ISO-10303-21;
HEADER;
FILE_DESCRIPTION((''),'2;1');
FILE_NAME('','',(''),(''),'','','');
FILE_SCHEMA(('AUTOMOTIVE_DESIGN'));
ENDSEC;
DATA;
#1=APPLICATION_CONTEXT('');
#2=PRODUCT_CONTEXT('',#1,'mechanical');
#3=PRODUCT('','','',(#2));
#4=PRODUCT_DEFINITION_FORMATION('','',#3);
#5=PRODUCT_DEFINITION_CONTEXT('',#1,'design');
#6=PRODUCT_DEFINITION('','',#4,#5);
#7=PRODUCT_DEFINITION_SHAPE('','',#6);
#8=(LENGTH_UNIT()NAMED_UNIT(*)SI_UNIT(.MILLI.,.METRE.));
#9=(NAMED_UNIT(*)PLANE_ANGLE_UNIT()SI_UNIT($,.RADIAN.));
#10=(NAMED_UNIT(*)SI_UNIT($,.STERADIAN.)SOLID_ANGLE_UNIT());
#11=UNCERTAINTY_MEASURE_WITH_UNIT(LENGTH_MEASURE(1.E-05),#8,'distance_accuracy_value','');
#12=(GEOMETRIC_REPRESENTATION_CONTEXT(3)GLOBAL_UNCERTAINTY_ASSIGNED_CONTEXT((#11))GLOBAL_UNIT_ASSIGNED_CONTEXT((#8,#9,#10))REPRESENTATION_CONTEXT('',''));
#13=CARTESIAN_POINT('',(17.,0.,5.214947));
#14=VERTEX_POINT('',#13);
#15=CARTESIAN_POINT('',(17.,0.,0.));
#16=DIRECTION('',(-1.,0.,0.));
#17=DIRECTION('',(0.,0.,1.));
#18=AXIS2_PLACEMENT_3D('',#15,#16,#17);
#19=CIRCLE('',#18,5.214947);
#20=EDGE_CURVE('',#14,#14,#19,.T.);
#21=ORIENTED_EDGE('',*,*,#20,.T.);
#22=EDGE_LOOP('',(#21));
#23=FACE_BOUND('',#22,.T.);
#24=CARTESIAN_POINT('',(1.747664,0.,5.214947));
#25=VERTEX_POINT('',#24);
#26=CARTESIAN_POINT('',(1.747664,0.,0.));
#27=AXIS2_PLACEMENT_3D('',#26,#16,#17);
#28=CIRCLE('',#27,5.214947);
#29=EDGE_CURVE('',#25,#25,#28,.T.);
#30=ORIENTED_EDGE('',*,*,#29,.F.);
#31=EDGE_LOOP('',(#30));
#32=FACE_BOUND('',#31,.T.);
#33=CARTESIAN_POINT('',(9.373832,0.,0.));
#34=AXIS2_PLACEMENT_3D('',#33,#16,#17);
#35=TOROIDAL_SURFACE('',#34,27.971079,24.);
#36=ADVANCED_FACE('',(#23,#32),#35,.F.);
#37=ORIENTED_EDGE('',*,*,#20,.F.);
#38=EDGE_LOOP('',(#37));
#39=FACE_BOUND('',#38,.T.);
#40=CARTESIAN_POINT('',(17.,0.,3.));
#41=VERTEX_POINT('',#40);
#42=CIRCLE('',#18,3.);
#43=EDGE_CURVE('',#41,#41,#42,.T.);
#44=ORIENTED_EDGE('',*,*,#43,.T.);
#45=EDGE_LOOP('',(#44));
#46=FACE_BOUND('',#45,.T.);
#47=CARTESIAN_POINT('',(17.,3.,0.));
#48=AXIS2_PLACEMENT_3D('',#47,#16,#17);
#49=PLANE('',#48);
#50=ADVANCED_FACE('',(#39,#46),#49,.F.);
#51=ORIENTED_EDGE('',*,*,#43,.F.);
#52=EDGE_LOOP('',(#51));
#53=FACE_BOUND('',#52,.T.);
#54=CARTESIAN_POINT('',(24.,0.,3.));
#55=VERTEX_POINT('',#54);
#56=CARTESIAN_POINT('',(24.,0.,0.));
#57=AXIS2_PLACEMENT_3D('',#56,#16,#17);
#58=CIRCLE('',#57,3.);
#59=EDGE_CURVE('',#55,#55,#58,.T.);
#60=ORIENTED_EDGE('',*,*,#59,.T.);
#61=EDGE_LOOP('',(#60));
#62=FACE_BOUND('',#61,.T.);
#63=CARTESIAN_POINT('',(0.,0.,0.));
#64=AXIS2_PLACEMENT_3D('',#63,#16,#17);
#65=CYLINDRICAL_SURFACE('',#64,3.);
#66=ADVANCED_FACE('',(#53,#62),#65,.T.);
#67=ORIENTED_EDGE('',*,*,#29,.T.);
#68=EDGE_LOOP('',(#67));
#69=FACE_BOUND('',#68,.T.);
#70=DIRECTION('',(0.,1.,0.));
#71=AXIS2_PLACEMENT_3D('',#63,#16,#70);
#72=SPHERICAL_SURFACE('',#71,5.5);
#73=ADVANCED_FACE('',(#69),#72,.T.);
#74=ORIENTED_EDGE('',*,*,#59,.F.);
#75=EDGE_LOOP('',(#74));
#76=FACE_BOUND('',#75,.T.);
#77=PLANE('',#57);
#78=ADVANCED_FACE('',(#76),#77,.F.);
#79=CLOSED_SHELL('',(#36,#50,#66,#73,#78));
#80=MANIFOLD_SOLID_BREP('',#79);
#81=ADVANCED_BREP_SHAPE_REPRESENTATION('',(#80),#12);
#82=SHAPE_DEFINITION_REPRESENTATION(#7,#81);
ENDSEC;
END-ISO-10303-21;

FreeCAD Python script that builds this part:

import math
import FreeCAD as App
import Part
import Sketcher
Q = App.Units.Quantity

doc = App.newDocument("Part")
params = doc.addObject("Spreadsheet::Sheet", "Params")
for row, (alias, value) in enumerate([
    ("sketch1_radius", "24 mm"),
    ("sketch1_radius2", "5.5 mm"),
    ("sketch1_width", "7 mm"),
    ("sketch1_height", "3 mm"),
    ("sketch1_width2", "29.5 mm"),
    ("revolution_angle", "360 deg"),
], start=1):
    params.set(f"A{row}", alias)
    params.set(f"B{row}", "=" + value)
    params.setAlias(f"B{row}", alias)

body = doc.addObject("PartDesign::Body", "Body")

# Sketch on XY plane
sketch1 = body.newObject("Sketcher::SketchObject", "Sketch")
sketch1.AttachmentSupport = (doc.getObject("XY_Plane"), [""])
sketch1.MapMode = "FlatFace"
sketch1.addGeometry(Part.LineSegment(App.Vector(24, 0, 0), App.Vector(24, 3, 0)), False)
sketch1.addGeometry(Part.LineSegment(App.Vector(24, 3, 0), App.Vector(17, 3, 0)), False)
sketch1.addGeometry(Part.LineSegment(App.Vector(17, 3, 0), App.Vector(17, 5.2, 0)), False)
sketch1.addGeometry(Part.ArcOfCircle(Part.Circle(App.Vector(9.4, 28, 0), App.Vector(0, 0, 1), 24), math.radians(-109), math.radians(-71)), False)
sketch1.addGeometry(Part.ArcOfCircle(Part.Circle(App.Vector(0, 0, 0), App.Vector(0, 0, 1), 5.5), math.radians(71), math.radians(180)), False)
sketch1.addGeometry(Part.LineSegment(App.Vector(-5.5, 0, 0), App.Vector(24, 0, 0)), False)
sketch1.addConstraint(Sketcher.Constraint("Coincident", 0, 2, 1, 1))
sketch1.addConstraint(Sketcher.Constraint("Coincident", 1, 2, 2, 1))
sketch1.addConstraint(Sketcher.Constraint("Coincident", 2, 2, 3, 2))
sketch1.addConstraint(Sketcher.Constraint("Tangent", 3, 1, 4, 1))
sketch1.addConstraint(Sketcher.Constraint("Coincident", 4, 2, 5, 1))
sketch1.addConstraint(Sketcher.Constraint("Coincident", 5, 2, 0, 1))
sketch1.addConstraint(Sketcher.Constraint("Vertical", 0))
sketch1.addConstraint(Sketcher.Constraint("Horizontal", 1))
sketch1.addConstraint(Sketcher.Constraint("Vertical", 2))
sketch1.addConstraint(Sketcher.Constraint("Horizontal", 5))
sketch1.addConstraint(Sketcher.Constraint("Coincident", 4, 3, -1, 1))
sketch1.addConstraint(Sketcher.Constraint("PointOnObject", 4, 2, -1))
sketch1.addConstraint(Sketcher.Constraint("Horizontal", 2, 2, 3, 1))
sketch1.addConstraint(Sketcher.Constraint("Radius", 3, Q("24 mm")))
sketch1.addConstraint(Sketcher.Constraint("Radius", 4, Q("5.5 mm")))
sketch1.addConstraint(Sketcher.Constraint("DistanceX", 1, 2, 1, 1, Q("7 mm")))
sketch1.addConstraint(Sketcher.Constraint("DistanceY", 0, 1, 0, 2, Q("3 mm")))
sketch1.addConstraint(Sketcher.Constraint("DistanceX", 5, 1, 5, 2, Q("29.5 mm")))
sketch1.setExpression("Constraints[13]", "Params.sketch1_radius")
sketch1.setExpression("Constraints[14]", "Params.sketch1_radius2")
sketch1.setExpression("Constraints[15]", "Params.sketch1_width")
sketch1.setExpression("Constraints[16]", "Params.sketch1_height")
sketch1.setExpression("Constraints[17]", "Params.sketch1_width2")
revolution = body.newObject("PartDesign::Revolution", "Revolution")
revolution.Profile = sketch1
revolution.ReferenceAxis = (sketch1, ["H_Axis"])
revolution.setExpression("Angle", "Params.revolution_angle")

doc.recompute()
